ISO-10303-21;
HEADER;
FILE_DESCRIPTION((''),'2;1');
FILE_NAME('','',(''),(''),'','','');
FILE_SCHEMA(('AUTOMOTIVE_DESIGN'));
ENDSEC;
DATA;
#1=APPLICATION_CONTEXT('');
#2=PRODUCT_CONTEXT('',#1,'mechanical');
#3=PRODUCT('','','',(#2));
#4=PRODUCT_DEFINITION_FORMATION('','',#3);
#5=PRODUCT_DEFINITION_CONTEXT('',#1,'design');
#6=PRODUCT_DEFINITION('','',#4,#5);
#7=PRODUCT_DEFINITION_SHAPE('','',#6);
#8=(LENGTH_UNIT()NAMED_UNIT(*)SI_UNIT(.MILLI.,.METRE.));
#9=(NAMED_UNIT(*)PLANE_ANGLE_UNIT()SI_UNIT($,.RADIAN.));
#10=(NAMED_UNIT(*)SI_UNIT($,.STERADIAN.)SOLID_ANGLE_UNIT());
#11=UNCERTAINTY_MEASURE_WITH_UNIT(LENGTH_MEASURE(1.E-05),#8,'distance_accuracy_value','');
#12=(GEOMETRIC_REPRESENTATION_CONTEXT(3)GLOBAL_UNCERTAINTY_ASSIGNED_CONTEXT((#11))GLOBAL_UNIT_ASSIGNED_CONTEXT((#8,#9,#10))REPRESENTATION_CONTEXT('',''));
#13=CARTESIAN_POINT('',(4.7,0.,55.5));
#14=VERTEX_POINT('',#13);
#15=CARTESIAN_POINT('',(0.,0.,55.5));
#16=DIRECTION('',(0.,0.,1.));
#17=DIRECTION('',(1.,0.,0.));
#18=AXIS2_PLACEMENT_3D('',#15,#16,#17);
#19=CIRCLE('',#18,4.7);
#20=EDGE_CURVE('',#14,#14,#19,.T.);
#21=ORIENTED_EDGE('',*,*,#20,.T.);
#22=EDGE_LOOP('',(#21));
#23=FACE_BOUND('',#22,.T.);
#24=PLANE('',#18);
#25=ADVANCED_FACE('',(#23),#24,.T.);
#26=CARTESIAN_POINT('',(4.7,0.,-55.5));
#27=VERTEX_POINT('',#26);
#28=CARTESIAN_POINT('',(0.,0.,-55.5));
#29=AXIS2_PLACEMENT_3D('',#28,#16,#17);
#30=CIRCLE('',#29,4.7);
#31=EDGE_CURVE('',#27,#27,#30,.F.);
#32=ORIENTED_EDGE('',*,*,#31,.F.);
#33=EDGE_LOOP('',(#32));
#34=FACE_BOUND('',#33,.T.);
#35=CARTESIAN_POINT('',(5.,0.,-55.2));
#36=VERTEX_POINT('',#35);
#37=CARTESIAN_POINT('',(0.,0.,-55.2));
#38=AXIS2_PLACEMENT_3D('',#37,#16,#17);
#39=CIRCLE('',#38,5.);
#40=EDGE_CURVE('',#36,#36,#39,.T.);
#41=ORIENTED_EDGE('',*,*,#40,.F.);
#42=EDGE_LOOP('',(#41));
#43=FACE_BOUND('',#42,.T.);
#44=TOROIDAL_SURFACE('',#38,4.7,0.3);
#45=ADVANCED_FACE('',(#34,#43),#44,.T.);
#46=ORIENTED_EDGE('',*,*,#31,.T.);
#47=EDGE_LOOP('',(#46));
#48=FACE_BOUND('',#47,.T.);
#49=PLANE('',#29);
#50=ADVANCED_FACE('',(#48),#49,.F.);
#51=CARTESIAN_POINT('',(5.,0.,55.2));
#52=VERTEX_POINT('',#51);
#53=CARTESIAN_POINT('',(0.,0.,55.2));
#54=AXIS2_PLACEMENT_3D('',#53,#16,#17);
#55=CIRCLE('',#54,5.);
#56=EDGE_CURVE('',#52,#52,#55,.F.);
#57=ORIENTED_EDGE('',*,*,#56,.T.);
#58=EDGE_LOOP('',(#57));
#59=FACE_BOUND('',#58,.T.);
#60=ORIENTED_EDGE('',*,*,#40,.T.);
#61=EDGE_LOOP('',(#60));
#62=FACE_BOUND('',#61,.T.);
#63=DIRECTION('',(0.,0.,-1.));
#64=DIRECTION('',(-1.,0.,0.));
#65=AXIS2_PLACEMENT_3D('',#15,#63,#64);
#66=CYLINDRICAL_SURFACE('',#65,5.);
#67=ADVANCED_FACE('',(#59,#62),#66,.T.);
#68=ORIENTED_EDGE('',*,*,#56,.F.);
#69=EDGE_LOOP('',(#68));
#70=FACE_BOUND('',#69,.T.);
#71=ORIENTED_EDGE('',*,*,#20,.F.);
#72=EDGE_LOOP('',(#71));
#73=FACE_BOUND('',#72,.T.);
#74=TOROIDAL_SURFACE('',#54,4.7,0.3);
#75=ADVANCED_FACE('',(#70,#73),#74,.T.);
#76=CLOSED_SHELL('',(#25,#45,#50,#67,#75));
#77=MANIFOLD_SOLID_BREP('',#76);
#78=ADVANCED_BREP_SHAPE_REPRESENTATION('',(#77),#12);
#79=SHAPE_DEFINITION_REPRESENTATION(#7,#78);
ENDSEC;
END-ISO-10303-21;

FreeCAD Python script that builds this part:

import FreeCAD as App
import Part
import Sketcher
from FreeCAD import Vector


def edges_at(feature, points):
    """Names of the edges that pass closest to the given points."""
    edges = feature.Shape.Edges
    near = lambda p: min(range(len(edges)), key=lambda i: edges[i].distToShape(Part.Vertex(*p))[0])
    return sorted({f"Edge{near(p) + 1}" for p in points})

doc = App.newDocument("Part")
body = doc.addObject("PartDesign::Body", "Body")

sketch1 = body.newObject("Sketcher::SketchObject", "Sketch")
sketch1.AttachmentSupport = (doc.getObject("XY_Plane"), [""])
sketch1.MapMode = "FlatFace"
sketch1.addGeometry(Part.Circle(Vector(0, 0, 0), Vector(0, 0, 1), 5), False)
sketch1.addConstraint([
    Sketcher.Constraint("Coincident", 0, 3, -1, 1),
    Sketcher.Constraint("Diameter", 0, 10.0),
])
pad1 = body.newObject("PartDesign::Pad", "Pad")
pad1.Profile = sketch1
pad1.Length = 111
pad1.Midplane = True
doc.recompute()

fillet = body.newObject("PartDesign::Fillet", "Fillet")
fillet.Base = (pad1, edges_at(pad1, [(-5, 0, -55.5), (-5, 0, 55.5)]))
fillet.Radius = 0.3

doc.recompute()
